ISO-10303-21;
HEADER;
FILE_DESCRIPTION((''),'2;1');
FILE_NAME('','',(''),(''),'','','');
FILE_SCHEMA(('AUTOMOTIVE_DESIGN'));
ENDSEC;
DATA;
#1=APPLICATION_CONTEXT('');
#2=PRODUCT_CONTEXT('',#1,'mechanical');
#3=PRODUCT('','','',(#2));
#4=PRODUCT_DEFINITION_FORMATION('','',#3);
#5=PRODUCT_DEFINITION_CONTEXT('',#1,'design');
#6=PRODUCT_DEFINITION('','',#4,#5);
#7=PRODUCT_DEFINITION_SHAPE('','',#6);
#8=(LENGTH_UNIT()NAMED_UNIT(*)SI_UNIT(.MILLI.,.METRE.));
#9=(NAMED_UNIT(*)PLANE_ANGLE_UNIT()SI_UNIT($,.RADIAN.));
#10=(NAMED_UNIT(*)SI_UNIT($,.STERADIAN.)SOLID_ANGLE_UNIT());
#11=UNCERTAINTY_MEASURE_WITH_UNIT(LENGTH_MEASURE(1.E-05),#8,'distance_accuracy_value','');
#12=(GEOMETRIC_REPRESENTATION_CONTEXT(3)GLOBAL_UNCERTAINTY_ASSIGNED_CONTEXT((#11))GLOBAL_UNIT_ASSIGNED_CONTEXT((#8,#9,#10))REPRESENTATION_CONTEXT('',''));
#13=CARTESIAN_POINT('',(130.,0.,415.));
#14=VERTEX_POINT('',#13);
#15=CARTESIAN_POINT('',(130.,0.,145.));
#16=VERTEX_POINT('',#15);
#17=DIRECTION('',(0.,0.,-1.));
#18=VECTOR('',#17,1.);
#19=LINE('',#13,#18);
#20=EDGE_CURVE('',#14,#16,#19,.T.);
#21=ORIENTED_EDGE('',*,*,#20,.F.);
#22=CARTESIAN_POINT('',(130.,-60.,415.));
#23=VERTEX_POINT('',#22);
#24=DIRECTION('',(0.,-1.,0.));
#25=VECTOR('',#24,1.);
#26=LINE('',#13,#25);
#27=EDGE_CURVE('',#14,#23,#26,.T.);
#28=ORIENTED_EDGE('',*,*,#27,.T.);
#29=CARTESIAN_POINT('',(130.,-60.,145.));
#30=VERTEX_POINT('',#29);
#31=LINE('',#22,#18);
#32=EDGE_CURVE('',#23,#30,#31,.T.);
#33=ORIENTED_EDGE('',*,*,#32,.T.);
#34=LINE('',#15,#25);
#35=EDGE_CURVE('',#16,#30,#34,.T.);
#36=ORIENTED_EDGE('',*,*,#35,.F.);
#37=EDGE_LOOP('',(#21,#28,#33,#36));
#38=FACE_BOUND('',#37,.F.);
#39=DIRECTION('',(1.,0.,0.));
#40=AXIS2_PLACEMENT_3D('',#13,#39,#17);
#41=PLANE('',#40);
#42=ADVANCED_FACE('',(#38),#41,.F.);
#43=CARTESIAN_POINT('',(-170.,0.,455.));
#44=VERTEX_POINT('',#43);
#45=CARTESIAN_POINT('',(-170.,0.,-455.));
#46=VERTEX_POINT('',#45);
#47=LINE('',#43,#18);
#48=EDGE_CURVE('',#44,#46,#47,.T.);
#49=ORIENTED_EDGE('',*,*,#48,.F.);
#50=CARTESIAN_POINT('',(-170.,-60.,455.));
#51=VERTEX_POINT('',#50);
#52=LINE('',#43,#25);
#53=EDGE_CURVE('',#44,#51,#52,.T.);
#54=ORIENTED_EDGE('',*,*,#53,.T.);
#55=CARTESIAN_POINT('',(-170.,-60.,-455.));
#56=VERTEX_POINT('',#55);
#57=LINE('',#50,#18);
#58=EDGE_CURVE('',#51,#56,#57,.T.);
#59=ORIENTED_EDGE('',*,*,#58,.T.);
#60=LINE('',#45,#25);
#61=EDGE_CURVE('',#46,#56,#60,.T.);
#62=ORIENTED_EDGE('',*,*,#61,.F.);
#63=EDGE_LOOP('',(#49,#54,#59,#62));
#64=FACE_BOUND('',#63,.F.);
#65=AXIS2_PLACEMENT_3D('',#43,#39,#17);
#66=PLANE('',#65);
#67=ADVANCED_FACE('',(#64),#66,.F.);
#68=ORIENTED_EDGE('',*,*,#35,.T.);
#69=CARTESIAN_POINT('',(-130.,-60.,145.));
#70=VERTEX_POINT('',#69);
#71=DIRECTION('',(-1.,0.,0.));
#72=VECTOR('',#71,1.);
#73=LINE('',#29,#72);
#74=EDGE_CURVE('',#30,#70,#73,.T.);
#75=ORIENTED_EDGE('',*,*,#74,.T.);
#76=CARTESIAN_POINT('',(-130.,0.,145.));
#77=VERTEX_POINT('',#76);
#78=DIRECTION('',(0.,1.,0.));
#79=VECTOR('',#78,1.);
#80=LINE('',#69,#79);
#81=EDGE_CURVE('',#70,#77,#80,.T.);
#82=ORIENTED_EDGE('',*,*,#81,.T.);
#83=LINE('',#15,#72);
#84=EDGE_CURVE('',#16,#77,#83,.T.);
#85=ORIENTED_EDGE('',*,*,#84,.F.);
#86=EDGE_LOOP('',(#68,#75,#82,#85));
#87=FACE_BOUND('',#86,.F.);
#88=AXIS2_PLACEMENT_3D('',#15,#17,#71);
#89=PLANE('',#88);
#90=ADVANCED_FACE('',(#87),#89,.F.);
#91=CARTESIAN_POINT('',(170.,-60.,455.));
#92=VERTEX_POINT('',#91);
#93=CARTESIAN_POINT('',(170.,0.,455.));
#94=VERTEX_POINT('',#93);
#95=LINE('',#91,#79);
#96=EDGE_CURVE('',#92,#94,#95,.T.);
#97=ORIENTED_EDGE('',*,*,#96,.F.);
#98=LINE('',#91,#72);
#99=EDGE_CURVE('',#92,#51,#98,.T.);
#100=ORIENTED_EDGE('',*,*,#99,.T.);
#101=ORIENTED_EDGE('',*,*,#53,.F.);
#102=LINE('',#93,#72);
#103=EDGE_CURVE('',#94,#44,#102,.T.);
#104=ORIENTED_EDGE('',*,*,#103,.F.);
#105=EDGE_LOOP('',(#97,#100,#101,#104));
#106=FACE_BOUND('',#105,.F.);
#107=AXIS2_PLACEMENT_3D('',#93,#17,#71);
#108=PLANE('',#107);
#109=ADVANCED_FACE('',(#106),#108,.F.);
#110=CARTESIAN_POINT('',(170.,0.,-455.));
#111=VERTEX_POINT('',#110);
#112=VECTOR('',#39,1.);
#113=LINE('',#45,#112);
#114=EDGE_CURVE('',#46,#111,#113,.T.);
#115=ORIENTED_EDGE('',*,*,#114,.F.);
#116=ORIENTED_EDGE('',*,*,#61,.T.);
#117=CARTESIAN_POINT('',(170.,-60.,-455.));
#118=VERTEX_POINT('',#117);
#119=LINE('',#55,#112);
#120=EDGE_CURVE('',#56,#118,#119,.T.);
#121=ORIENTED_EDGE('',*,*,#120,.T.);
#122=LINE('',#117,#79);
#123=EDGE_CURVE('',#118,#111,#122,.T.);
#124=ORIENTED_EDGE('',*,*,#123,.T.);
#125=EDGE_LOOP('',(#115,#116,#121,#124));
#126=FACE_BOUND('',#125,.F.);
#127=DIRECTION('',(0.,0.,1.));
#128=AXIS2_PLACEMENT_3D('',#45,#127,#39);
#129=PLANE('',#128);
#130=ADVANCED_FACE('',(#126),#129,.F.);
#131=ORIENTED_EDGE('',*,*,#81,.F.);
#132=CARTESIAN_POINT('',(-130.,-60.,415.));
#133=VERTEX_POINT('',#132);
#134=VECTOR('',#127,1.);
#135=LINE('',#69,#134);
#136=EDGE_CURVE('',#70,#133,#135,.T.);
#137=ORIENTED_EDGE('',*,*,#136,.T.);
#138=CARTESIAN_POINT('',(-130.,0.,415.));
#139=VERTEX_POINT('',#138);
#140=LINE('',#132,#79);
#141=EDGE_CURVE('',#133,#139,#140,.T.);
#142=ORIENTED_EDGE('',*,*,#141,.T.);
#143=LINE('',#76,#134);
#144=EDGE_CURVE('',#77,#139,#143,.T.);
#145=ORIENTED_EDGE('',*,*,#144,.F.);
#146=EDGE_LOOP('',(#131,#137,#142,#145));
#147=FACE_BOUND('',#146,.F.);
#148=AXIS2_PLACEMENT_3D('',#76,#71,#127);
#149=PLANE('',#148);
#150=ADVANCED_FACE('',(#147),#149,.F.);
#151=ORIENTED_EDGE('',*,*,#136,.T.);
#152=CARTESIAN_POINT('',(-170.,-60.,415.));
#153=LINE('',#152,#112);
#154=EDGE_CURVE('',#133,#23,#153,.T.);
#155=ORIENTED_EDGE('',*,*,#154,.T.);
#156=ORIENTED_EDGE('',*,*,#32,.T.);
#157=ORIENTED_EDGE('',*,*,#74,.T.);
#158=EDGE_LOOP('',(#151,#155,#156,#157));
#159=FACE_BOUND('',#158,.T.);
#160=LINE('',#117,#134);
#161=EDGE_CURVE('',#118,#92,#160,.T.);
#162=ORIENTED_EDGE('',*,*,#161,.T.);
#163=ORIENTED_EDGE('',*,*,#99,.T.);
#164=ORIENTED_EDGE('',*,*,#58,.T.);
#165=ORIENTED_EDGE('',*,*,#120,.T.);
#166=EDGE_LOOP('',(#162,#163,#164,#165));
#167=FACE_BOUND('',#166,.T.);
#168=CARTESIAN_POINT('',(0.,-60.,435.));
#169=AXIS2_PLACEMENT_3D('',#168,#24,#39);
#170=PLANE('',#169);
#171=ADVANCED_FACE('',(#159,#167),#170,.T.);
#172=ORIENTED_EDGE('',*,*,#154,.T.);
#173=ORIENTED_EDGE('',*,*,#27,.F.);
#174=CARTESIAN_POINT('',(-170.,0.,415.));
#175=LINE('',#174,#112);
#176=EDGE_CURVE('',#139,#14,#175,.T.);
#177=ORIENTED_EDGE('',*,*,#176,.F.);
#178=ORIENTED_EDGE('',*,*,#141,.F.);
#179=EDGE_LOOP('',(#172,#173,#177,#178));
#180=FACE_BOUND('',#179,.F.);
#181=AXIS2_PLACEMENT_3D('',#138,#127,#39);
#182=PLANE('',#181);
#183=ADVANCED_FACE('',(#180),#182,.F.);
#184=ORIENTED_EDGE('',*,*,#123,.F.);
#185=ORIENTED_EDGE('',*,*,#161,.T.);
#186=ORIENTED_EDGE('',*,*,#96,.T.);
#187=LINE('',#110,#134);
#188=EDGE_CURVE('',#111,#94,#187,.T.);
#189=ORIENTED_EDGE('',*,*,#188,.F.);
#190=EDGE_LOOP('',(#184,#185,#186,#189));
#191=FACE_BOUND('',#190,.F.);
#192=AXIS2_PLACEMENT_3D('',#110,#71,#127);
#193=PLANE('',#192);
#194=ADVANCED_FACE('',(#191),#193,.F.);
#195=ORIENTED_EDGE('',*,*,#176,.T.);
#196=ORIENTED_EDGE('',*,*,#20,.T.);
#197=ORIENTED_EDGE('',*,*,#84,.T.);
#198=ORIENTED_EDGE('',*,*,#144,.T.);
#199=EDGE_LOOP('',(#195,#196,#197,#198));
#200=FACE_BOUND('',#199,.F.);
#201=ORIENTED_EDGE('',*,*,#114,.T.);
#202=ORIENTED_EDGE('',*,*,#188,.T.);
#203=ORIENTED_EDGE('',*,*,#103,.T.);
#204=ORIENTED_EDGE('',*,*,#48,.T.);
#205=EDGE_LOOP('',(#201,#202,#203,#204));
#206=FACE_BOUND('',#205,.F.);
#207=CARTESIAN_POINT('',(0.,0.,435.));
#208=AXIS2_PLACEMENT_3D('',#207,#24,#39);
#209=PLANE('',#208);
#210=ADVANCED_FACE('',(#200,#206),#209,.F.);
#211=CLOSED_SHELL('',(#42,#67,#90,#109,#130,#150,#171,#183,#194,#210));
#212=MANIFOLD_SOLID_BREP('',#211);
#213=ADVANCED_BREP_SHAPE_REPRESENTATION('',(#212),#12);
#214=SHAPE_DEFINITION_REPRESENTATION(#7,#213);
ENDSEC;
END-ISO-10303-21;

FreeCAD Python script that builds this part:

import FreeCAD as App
import Part
import Sketcher

V = App.Vector
Q = App.Units.Quantity


def add_polygon(sketch, points):
    """Adds a closed chain of lines whose ends are joined by coincident constraints."""
    first, n = sketch.GeometryCount, len(points)
    for a, b in zip(points, points[1:] + points[:1]):
        sketch.addGeometry(Part.LineSegment(App.Vector(*a, 0), App.Vector(*b, 0)), False)
    for i in range(n):
        sketch.addConstraint(Sketcher.Constraint("Coincident", first + i, 2, first + (i + 1) % n, 1))

doc = App.newDocument("Part")
params = doc.addObject("Spreadsheet::Sheet", "Params")
for row, (alias, value) in enumerate([
    ("sketch1_width", "340 mm"),
    ("sketch1_width2", "260 mm"),
    ("sketch1_height", "910 mm"),
    ("sketch1_height2", "270 mm"),
    ("pad1_length", "60 mm"),
    ("sketch2_width", "340 mm"),
    ("sketch2_width2", "260 mm"),
    ("sketch2_height", "910 mm"),
    ("sketch2_height2", "330 mm"),
    ("pad2_length", "40 mm"),
], start=1):
    params.set(f"A{row}", alias)
    params.set(f"B{row}", "=" + value)
    params.setAlias(f"B{row}", alias)

body = doc.addObject("PartDesign::Body", "Body")

# Sketch on XZ plane
sketch1 = body.newObject("Sketcher::SketchObject", "Sketch")
sketch1.AttachmentSupport = (doc.getObject("XZ_Plane"), [""])
sketch1.MapMode = "FlatFace"
add_polygon(sketch1, [(170, 455), (-170, 455), (-170, -455), (170, -455)])  # lines 0-3
add_polygon(sketch1, [(-130, 145), (-130, 415), (130, 415), (130, 145)])  # lines 4-7
sketch1.addConstraint(Sketcher.Constraint("Horizontal", 0))
sketch1.addConstraint(Sketcher.Constraint("Vertical", 1))
sketch1.addConstraint(Sketcher.Constraint("Horizontal", 2))
sketch1.addConstraint(Sketcher.Constraint("Vertical", 3))
sketch1.addConstraint(Sketcher.Constraint("Vertical", 4))
sketch1.addConstraint(Sketcher.Constraint("Horizontal", 5))
sketch1.addConstraint(Sketcher.Constraint("Vertical", 6))
sketch1.addConstraint(Sketcher.Constraint("Horizontal", 7))
sketch1.addConstraint(Sketcher.Constraint("Symmetric", 0, 2, 2, 2, -1, 1))
sketch1.addConstraint(Sketcher.Constraint("DistanceX", 0, 2, 0, 1, Q("340 mm")))
sketch1.addConstraint(Sketcher.Constraint("DistanceX", 5, 1, 5, 2, Q("260 mm")))
sketch1.addConstraint(Sketcher.Constraint("DistanceY", 1, 2, 1, 1, Q("910 mm")))
sketch1.addConstraint(Sketcher.Constraint("DistanceY", 4, 1, 4, 2, Q("270 mm")))
sketch1.addConstraint(Sketcher.Constraint("DistanceX", 4, 2, -1, 1, Q("130 mm")))
sketch1.addConstraint(Sketcher.Constraint("DistanceY", -1, 1, 4, 2, Q("415 mm")))
sketch1.setExpression("Constraints[17]", "Params.sketch1_width")
sketch1.setExpression("Constraints[18]", "Params.sketch1_width2")
sketch1.setExpression("Constraints[19]", "Params.sketch1_height")
sketch1.setExpression("Constraints[20]", "Params.sketch1_height2")
pad1 = body.newObject("PartDesign::Pad", "Pad")
pad1.Profile = sketch1
pad1.setExpression("Length", "Params.pad1_length")

# Sketch on XZ plane
sketch2 = body.newObject("Sketcher::SketchObject", "Sketch001")
sketch2.AttachmentSupport = (doc.getObject("XZ_Plane"), [""])
sketch2.MapMode = "FlatFace"
sketch2.AttachmentOffset = App.Placement(V(0, 0, 60), App.Rotation())
add_polygon(sketch2, [(170, 455), (-170, 455), (-170, -455), (170, -455)])  # lines 0-3
add_polygon(sketch2, [(-130, 415), (130, 415), (130, 85), (-130, 85)])  # lines 4-7
sketch2.addConstraint(Sketcher.Constraint("Horizontal", 0))
sketch2.addConstraint(Sketcher.Constraint("Vertical", 1))
sketch2.addConstraint(Sketcher.Constraint("Horizontal", 2))
sketch2.addConstraint(Sketcher.Constraint("Vertical", 3))
sketch2.addConstraint(Sketcher.Constraint("Horizontal", 4))
sketch2.addConstraint(Sketcher.Constraint("Vertical", 5))
sketch2.addConstraint(Sketcher.Constraint("Horizontal", 6))
sketch2.addConstraint(Sketcher.Constraint("Vertical", 7))
sketch2.addConstraint(Sketcher.Constraint("Symmetric", 0, 2, 2, 2, -1, 1))
sketch2.addConstraint(Sketcher.Constraint("DistanceX", 0, 2, 0, 1, Q("340 mm")))
sketch2.addConstraint(Sketcher.Constraint("DistanceX", 4, 1, 4, 2, Q("260 mm")))
sketch2.addConstraint(Sketcher.Constraint("DistanceY", 1, 2, 1, 1, Q("910 mm")))
sketch2.addConstraint(Sketcher.Constraint("DistanceY", 5, 2, 5, 1, Q("330 mm")))
sketch2.addConstraint(Sketcher.Constraint("DistanceX", -1, 1, 4, 2, Q("130 mm")))
sketch2.addConstraint(Sketcher.Constraint("DistanceY", -1, 1, 4, 2, Q("415 mm")))
sketch2.setExpression("Constraints[17]", "Params.sketch2_width")
sketch2.setExpression("Constraints[18]", "Params.sketch2_width2")
sketch2.setExpression("Constraints[19]", "Params.sketch2_height")
sketch2.setExpression("Constraints[20]", "Params.sketch2_height2")
pad2 = body.newObject("PartDesign::Pad", "Pad001")
pad2.Profile = sketch2
pad2.setExpression("Length", "Params.pad2_length")
pad2.Reversed = True

doc.recompute()
